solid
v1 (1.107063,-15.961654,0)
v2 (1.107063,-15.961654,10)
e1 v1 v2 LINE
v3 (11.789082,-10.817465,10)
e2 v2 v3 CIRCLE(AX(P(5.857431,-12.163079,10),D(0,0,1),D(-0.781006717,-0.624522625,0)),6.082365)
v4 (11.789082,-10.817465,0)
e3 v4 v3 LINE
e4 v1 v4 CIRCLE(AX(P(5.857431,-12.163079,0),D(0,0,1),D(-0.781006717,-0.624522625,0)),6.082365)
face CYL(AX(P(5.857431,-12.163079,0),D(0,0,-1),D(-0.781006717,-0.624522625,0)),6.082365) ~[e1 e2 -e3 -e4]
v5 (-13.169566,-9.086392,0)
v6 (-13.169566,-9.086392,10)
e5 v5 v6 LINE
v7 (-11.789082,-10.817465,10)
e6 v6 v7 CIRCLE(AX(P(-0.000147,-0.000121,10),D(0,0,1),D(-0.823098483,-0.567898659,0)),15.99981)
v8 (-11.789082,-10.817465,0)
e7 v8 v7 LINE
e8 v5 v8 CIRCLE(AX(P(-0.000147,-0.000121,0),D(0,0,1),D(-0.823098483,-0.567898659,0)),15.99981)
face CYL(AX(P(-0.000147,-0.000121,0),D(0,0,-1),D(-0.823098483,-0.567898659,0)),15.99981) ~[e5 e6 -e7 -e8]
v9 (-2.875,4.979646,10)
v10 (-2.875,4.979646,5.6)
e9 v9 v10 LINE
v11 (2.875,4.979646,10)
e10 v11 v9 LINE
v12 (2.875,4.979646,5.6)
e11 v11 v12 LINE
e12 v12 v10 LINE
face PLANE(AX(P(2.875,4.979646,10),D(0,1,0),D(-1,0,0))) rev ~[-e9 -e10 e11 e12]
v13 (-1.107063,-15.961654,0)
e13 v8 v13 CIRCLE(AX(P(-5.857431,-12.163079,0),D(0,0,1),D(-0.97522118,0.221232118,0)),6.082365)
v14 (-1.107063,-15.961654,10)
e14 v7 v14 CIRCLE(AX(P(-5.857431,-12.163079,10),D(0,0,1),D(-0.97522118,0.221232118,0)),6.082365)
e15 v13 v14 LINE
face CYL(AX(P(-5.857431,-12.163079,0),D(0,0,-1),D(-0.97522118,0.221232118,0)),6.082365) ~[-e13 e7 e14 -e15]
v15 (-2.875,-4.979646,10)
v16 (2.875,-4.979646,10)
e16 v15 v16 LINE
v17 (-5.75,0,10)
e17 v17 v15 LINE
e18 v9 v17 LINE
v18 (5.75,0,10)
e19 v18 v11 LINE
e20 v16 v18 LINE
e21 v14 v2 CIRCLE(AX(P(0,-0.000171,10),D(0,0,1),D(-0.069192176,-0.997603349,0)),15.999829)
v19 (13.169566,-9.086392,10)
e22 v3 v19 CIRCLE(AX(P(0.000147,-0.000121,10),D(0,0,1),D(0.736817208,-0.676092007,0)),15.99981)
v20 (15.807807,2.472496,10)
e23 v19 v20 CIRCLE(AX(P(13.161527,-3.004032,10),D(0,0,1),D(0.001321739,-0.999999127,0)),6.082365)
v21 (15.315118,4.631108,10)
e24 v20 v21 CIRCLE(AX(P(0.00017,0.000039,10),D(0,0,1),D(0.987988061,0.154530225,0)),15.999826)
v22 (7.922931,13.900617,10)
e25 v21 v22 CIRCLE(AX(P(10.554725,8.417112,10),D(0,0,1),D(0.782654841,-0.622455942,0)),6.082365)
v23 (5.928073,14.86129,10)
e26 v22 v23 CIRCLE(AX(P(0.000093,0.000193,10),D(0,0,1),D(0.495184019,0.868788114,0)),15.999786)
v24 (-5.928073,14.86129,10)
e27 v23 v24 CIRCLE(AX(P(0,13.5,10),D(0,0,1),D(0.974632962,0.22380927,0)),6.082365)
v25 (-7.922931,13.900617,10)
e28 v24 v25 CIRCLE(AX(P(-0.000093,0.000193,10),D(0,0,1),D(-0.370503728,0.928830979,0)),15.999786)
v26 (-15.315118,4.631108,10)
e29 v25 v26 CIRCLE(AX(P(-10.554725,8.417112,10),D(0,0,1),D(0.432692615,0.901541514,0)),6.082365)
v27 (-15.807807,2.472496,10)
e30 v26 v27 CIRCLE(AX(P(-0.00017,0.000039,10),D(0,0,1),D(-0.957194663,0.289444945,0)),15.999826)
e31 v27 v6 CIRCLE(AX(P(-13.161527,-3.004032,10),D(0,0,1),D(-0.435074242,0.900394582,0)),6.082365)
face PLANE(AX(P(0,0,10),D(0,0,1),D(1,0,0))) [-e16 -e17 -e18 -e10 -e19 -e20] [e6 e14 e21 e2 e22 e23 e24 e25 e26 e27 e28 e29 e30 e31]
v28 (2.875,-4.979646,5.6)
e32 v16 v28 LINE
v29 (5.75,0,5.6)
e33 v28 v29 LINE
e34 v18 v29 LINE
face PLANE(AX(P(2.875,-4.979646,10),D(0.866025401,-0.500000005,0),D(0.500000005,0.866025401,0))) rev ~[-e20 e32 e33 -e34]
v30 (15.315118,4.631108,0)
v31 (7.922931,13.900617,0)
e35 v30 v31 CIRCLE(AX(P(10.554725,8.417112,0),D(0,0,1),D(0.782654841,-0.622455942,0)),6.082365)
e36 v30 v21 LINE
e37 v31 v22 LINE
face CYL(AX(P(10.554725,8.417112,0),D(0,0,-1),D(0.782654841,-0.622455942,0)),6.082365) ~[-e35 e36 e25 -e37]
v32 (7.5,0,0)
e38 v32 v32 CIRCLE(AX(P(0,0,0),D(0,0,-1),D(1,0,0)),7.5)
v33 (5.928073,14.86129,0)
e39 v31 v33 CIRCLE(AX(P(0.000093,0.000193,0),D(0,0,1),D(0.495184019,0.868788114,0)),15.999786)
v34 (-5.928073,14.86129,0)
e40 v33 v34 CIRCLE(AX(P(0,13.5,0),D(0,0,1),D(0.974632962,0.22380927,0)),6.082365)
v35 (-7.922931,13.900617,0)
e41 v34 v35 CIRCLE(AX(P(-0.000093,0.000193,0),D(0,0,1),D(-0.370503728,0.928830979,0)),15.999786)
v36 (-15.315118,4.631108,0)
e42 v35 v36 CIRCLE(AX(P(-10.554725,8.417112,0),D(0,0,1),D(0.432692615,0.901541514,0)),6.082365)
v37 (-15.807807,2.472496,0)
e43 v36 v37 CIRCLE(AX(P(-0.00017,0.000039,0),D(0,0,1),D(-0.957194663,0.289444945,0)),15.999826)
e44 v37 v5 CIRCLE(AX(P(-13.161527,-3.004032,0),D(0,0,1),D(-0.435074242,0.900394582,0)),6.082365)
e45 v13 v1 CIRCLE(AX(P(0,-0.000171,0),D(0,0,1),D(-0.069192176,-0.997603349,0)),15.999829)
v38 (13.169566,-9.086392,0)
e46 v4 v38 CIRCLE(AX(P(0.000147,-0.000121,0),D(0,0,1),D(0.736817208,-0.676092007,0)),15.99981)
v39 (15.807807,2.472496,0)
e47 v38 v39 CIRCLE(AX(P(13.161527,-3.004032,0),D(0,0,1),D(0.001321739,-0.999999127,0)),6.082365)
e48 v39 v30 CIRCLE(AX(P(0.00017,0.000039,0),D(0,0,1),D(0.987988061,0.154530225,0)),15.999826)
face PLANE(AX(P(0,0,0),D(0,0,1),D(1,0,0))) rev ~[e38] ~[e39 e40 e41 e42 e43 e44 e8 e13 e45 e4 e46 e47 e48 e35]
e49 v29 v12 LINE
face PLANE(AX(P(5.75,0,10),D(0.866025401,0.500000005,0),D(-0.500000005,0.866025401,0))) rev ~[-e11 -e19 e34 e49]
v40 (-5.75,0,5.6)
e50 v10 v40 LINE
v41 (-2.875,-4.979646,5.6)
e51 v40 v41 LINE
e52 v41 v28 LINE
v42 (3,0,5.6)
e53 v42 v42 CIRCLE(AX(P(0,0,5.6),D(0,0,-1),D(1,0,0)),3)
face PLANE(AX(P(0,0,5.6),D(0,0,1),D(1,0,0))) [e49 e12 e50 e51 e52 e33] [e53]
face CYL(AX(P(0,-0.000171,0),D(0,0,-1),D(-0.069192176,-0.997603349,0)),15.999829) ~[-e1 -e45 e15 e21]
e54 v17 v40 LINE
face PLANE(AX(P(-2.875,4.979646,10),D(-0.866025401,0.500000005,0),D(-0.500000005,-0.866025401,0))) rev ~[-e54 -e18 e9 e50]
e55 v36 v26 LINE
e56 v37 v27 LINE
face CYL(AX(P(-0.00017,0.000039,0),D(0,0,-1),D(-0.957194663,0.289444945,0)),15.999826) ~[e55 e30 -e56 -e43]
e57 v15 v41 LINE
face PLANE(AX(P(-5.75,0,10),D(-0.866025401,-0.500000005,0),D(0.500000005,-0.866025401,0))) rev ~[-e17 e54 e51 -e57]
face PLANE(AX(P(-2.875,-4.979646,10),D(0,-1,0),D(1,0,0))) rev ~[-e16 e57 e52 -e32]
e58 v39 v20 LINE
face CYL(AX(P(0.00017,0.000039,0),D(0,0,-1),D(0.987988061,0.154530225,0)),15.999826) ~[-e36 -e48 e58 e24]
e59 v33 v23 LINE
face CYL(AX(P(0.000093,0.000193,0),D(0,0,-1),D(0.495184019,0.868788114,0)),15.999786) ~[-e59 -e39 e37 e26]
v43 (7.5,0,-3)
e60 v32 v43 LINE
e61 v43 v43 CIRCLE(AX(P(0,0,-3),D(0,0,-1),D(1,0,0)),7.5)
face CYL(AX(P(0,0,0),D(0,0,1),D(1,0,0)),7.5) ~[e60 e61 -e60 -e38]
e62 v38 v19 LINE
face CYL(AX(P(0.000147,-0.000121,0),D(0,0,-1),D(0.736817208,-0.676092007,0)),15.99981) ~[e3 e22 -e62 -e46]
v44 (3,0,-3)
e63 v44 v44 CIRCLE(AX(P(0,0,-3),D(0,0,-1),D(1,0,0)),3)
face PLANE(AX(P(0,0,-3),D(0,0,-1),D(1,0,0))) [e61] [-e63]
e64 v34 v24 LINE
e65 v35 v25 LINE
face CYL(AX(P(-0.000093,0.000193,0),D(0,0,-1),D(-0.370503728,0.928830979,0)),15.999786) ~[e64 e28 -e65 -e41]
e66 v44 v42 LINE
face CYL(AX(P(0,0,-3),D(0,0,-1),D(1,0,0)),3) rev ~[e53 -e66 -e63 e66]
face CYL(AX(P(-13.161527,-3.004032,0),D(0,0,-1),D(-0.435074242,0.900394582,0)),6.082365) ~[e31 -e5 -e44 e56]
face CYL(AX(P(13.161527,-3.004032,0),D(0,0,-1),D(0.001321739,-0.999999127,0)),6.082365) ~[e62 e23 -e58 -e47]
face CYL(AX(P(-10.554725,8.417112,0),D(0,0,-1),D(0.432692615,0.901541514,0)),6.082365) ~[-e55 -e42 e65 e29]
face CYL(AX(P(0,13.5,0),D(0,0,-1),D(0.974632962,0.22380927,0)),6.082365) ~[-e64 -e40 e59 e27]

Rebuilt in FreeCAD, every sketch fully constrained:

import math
import FreeCAD as App
import Part
import Sketcher
Q = App.Units.Quantity

doc = App.newDocument("Part")
body = doc.addObject("PartDesign::Body", "Body")

# Sketch on XY plane
sketch1 = body.newObject("Sketcher::SketchObject", "Sketch")
sketch1.AttachmentSupport = (doc.getObject("XY_Plane"), [""])
sketch1.MapMode = "FlatFace"
sketch1.addGeometry([
    Part.ArcOfCircle(Part.Circle(App.Vector(0, 13.5, 0), App.Vector(0, 0, 1), 6.082365), math.radians(12.932869), math.radians(167.067131)),  # 0
    Part.ArcOfCircle(Part.Circle(App.Vector(-0.000093, 0.000193, 0), App.Vector(0, 0, 1), 15.999786), math.radians(111.746687), math.radians(119.681885)),  # 1
    Part.ArcOfCircle(Part.Circle(App.Vector(-10.554725, 8.417112, 0), App.Vector(0, 0, 1), 6.082365), math.radians(64.361438), math.radians(218.495703)),  # 2
    Part.ArcOfCircle(Part.Circle(App.Vector(-0.00017, 0.000039, 0), App.Vector(0, 0, 1), 15.999826), math.radians(163.175271), math.radians(171.110448)),  # 3
    Part.ArcOfCircle(Part.Circle(App.Vector(-13.161527, -3.004032, 0), App.Vector(0, 0, 1), 6.082365), math.radians(115.790018), math.radians(269.92427)),  # 4
    Part.ArcOfCircle(Part.Circle(App.Vector(-0.000147, -0.000121, 0), App.Vector(0, 0, 1), 15.99981), math.radians(-145.396178), math.radians(-137.460992)),  # 5
    Part.ArcOfCircle(Part.Circle(App.Vector(-5.857431, -12.163079, 0), App.Vector(0, 0, 1), 6.082365), math.radians(167.218588), math.radians(321.352842)),  # 6
    Part.ArcOfCircle(Part.Circle(App.Vector(0, -0.000171, 0), App.Vector(0, 0, 1), 15.999829), math.radians(-93.96759), math.radians(-86.03241)),  # 7
    Part.ArcOfCircle(Part.Circle(App.Vector(5.857431, -12.163079, 0), App.Vector(0, 0, 1), 6.082365), math.radians(-141.352842), math.radians(12.781412)),  # 8
    Part.ArcOfCircle(Part.Circle(App.Vector(0.000147, -0.000121, 0), App.Vector(0, 0, 1), 15.99981), math.radians(-42.539008), math.radians(-34.603822)),  # 9
    Part.ArcOfCircle(Part.Circle(App.Vector(13.161527, -3.004032, 0), App.Vector(0, 0, 1), 6.082365), math.radians(-89.92427), math.radians(64.209982)),  # 10
    Part.ArcOfCircle(Part.Circle(App.Vector(0.00017, 0.000039, 0), App.Vector(0, 0, 1), 15.999826), math.radians(8.889552), math.radians(16.824729)),  # 11
    Part.ArcOfCircle(Part.Circle(App.Vector(10.554725, 8.417112, 0), App.Vector(0, 0, 1), 6.082365), math.radians(-38.495703), math.radians(115.638562)),  # 12
    Part.ArcOfCircle(Part.Circle(App.Vector(0.000093, 0.000193, 0), App.Vector(0, 0, 1), 15.999786), math.radians(60.318115), math.radians(68.253313)),  # 13
], False)
sketch1.addConstraint([
    Sketcher.Constraint("Coincident", 0, 2, 1, 1),
    Sketcher.Constraint("Coincident", 1, 2, 2, 1),
    Sketcher.Constraint("Coincident", 2, 2, 3, 1),
    Sketcher.Constraint("Coincident", 3, 2, 4, 1),
    Sketcher.Constraint("Coincident", 4, 2, 5, 1),
    Sketcher.Constraint("Coincident", 5, 2, 6, 1),
    Sketcher.Constraint("Coincident", 6, 2, 7, 1),
    Sketcher.Constraint("Coincident", 7, 2, 8, 1),
    Sketcher.Constraint("Coincident", 8, 2, 9, 1),
    Sketcher.Constraint("Coincident", 9, 2, 10, 1),
    Sketcher.Constraint("Coincident", 10, 2, 11, 1),
    Sketcher.Constraint("Coincident", 11, 2, 12, 1),
    Sketcher.Constraint("Coincident", 12, 2, 13, 1),
    Sketcher.Constraint("Coincident", 13, 2, 0, 1),
    Sketcher.Constraint("Equal", 0, 2),
    Sketcher.Constraint("Equal", 2, 4),
    Sketcher.Constraint("Equal", 4, 6),
    Sketcher.Constraint("Equal", 6, 8),
    Sketcher.Constraint("Equal", 5, 9),
    Sketcher.Constraint("Equal", 8, 10),
    Sketcher.Constraint("Equal", 3, 11),
    Sketcher.Constraint("Equal", 10, 12),
    Sketcher.Constraint("Equal", 1, 13),
    Sketcher.Constraint("Symmetric", 6, 3, 8, 3, -2),
    Sketcher.Constraint("Symmetric", 5, 3, 9, 3, -2),
    Sketcher.Constraint("Symmetric", 4, 3, 10, 3, -2),
    Sketcher.Constraint("Symmetric", 3, 3, 11, 3, -2),
    Sketcher.Constraint("Symmetric", 2, 3, 12, 3, -2),
    Sketcher.Constraint("Symmetric", 1, 3, 13, 3, -2),
    Sketcher.Constraint("PointOnObject", 0, 3, -2),
    Sketcher.Constraint("PointOnObject", 7, 3, -2),
    Sketcher.Constraint("DistanceY", -1, 1, 0, 3, 13.5),
    Sketcher.Constraint("Radius", 5, 15.99981),
    Sketcher.Constraint("Radius", 7, 15.999829),
    Sketcher.Constraint("Radius", 0, 6.082365),
    Sketcher.Constraint("Radius", 1, 15.999786),
    Sketcher.Constraint("Radius", 3, 15.999826),
    Sketcher.Constraint("DistanceX", 4, 3, 2, 3, 2.606801),
    Sketcher.Constraint("DistanceX", 3, 3, 8, 3, 5.857601),
    Sketcher.Constraint("DistanceY", 4, 2, 2, 2, 13.7175),
    Sketcher.Constraint("DistanceX", 3, 3, -1, 1, 0.00017),
    Sketcher.Constraint("DistanceY", 5, 3, -1, 1, 0.000121),
    Sketcher.Constraint("DistanceY", 6, 3, -1, 1, 12.163079),
    Sketcher.Constraint("DistanceY", 7, 3, -1, 1, 0.000171),
    Sketcher.Constraint("DistanceY", -1, 1, 0, 2, 14.86129),
    Sketcher.Constraint("DistanceX", 1, 2, -1, 1, 7.922931),
    Sketcher.Constraint("DistanceX", 2, 2, -1, 1, 15.315118),
    Sketcher.Constraint("DistanceX", 5, 2, -1, 1, 11.789082),
    Sketcher.Constraint("DistanceY", 9, 2, -1, 1, 9.086392),
    Sketcher.Constraint("DistanceY", 2, 3, 0, 3, 5.082888),
])
pad1 = body.newObject("PartDesign::Pad", "Pad")
pad1.Profile = sketch1
pad1.Length = 10

# Sketch on XY plane
sketch2 = body.newObject("Sketcher::SketchObject", "Sketch001")
sketch2.AttachmentSupport = (doc.getObject("XY_Plane"), [""])
sketch2.MapMode = "FlatFace"
sketch2.AttachmentOffset = App.Placement(App.Vector(0, 0, 10), App.Rotation())
sketch2.addGeometry([
    Part.LineSegment(App.Vector(3, -5, 0), App.Vector(6, 0, 0)),  # 0
    Part.LineSegment(App.Vector(6, 0, 0), App.Vector(3, 5, 0)),  # 1
    Part.LineSegment(App.Vector(3, 5, 0), App.Vector(-3, 5, 0)),  # 2
    Part.LineSegment(App.Vector(-3, 5, 0), App.Vector(-6, 0, 0)),  # 3
    Part.LineSegment(App.Vector(-6, 0, 0), App.Vector(-3, -5, 0)),  # 4
    Part.LineSegment(App.Vector(-3, -5, 0), App.Vector(3, -5, 0)),  # 5
], False)
sketch2.addConstraint([
    Sketcher.Constraint("Coincident", 0, 2, 1, 1),
    Sketcher.Constraint("Coincident", 1, 2, 2, 1),
    Sketcher.Constraint("Coincident", 2, 2, 3, 1),
    Sketcher.Constraint("Coincident", 3, 2, 4, 1),
    Sketcher.Constraint("Coincident", 4, 2, 5, 1),
    Sketcher.Constraint("Coincident", 5, 2, 0, 1),
    Sketcher.Constraint("Horizontal", 2),
    Sketcher.Constraint("Horizontal", 5),
    Sketcher.Constraint("Symmetric", 0, 2, 3, 2, -1, 1),
    Sketcher.Constraint("Symmetric", 1, 2, 4, 2, -1, 1),
    Sketcher.Constraint("PointOnObject", 0, 2, -1),
    Sketcher.Constraint("Parallel", 0, 3),
    Sketcher.Constraint("Vertical", 2, 2, 4, 2),
    Sketcher.Constraint("Angle", 0, Q("60 deg")),
    Sketcher.Constraint("DistanceX", 2, 2, 2, 1, 5.75),
    Sketcher.Constraint("DistanceX", 3, 2, 0, 2, 11.5),
])
pocket1 = body.newObject("PartDesign::Pocket", "Pocket")
pocket1.Profile = sketch2
pocket1.Length = 4.4

# Sketch on XY plane
sketch3 = body.newObject("Sketcher::SketchObject", "Sketch002")
sketch3.AttachmentSupport = (doc.getObject("XY_Plane"), [""])
sketch3.MapMode = "FlatFace"
sketch3.addGeometry(Part.Circle(App.Vector(0, 0, 0), App.Vector(0, 0, 1), 8), False)
sketch3.addConstraint([
    Sketcher.Constraint("Coincident", 0, 3, -1, 1),
    Sketcher.Constraint("Diameter", 0, 15.0),
])
pad2 = body.newObject("PartDesign::Pad", "Pad001")
pad2.Profile = sketch3
pad2.Length = 3
pad2.Reversed = True

# Sketch on XY plane
sketch4 = body.newObject("Sketcher::SketchObject", "Sketch003")
sketch4.AttachmentSupport = (doc.getObject("XY_Plane"), [""])
sketch4.MapMode = "FlatFace"
sketch4.AttachmentOffset = App.Placement(App.Vector(0, 0, -3), App.Rotation())
sketch4.addGeometry(Part.Circle(App.Vector(0, 0, 0), App.Vector(0, 0, 1), 3), False)
sketch4.addConstraint([
    Sketcher.Constraint("Coincident", 0, 3, -1, 1),
    Sketcher.Constraint("Diameter", 0, 6.0),
])
pocket2 = body.newObject("PartDesign::Pocket", "Pocket001")
pocket2.Profile = sketch4
pocket2.Type = "ThroughAll"
pocket2.Reversed = True

doc.recompute()
